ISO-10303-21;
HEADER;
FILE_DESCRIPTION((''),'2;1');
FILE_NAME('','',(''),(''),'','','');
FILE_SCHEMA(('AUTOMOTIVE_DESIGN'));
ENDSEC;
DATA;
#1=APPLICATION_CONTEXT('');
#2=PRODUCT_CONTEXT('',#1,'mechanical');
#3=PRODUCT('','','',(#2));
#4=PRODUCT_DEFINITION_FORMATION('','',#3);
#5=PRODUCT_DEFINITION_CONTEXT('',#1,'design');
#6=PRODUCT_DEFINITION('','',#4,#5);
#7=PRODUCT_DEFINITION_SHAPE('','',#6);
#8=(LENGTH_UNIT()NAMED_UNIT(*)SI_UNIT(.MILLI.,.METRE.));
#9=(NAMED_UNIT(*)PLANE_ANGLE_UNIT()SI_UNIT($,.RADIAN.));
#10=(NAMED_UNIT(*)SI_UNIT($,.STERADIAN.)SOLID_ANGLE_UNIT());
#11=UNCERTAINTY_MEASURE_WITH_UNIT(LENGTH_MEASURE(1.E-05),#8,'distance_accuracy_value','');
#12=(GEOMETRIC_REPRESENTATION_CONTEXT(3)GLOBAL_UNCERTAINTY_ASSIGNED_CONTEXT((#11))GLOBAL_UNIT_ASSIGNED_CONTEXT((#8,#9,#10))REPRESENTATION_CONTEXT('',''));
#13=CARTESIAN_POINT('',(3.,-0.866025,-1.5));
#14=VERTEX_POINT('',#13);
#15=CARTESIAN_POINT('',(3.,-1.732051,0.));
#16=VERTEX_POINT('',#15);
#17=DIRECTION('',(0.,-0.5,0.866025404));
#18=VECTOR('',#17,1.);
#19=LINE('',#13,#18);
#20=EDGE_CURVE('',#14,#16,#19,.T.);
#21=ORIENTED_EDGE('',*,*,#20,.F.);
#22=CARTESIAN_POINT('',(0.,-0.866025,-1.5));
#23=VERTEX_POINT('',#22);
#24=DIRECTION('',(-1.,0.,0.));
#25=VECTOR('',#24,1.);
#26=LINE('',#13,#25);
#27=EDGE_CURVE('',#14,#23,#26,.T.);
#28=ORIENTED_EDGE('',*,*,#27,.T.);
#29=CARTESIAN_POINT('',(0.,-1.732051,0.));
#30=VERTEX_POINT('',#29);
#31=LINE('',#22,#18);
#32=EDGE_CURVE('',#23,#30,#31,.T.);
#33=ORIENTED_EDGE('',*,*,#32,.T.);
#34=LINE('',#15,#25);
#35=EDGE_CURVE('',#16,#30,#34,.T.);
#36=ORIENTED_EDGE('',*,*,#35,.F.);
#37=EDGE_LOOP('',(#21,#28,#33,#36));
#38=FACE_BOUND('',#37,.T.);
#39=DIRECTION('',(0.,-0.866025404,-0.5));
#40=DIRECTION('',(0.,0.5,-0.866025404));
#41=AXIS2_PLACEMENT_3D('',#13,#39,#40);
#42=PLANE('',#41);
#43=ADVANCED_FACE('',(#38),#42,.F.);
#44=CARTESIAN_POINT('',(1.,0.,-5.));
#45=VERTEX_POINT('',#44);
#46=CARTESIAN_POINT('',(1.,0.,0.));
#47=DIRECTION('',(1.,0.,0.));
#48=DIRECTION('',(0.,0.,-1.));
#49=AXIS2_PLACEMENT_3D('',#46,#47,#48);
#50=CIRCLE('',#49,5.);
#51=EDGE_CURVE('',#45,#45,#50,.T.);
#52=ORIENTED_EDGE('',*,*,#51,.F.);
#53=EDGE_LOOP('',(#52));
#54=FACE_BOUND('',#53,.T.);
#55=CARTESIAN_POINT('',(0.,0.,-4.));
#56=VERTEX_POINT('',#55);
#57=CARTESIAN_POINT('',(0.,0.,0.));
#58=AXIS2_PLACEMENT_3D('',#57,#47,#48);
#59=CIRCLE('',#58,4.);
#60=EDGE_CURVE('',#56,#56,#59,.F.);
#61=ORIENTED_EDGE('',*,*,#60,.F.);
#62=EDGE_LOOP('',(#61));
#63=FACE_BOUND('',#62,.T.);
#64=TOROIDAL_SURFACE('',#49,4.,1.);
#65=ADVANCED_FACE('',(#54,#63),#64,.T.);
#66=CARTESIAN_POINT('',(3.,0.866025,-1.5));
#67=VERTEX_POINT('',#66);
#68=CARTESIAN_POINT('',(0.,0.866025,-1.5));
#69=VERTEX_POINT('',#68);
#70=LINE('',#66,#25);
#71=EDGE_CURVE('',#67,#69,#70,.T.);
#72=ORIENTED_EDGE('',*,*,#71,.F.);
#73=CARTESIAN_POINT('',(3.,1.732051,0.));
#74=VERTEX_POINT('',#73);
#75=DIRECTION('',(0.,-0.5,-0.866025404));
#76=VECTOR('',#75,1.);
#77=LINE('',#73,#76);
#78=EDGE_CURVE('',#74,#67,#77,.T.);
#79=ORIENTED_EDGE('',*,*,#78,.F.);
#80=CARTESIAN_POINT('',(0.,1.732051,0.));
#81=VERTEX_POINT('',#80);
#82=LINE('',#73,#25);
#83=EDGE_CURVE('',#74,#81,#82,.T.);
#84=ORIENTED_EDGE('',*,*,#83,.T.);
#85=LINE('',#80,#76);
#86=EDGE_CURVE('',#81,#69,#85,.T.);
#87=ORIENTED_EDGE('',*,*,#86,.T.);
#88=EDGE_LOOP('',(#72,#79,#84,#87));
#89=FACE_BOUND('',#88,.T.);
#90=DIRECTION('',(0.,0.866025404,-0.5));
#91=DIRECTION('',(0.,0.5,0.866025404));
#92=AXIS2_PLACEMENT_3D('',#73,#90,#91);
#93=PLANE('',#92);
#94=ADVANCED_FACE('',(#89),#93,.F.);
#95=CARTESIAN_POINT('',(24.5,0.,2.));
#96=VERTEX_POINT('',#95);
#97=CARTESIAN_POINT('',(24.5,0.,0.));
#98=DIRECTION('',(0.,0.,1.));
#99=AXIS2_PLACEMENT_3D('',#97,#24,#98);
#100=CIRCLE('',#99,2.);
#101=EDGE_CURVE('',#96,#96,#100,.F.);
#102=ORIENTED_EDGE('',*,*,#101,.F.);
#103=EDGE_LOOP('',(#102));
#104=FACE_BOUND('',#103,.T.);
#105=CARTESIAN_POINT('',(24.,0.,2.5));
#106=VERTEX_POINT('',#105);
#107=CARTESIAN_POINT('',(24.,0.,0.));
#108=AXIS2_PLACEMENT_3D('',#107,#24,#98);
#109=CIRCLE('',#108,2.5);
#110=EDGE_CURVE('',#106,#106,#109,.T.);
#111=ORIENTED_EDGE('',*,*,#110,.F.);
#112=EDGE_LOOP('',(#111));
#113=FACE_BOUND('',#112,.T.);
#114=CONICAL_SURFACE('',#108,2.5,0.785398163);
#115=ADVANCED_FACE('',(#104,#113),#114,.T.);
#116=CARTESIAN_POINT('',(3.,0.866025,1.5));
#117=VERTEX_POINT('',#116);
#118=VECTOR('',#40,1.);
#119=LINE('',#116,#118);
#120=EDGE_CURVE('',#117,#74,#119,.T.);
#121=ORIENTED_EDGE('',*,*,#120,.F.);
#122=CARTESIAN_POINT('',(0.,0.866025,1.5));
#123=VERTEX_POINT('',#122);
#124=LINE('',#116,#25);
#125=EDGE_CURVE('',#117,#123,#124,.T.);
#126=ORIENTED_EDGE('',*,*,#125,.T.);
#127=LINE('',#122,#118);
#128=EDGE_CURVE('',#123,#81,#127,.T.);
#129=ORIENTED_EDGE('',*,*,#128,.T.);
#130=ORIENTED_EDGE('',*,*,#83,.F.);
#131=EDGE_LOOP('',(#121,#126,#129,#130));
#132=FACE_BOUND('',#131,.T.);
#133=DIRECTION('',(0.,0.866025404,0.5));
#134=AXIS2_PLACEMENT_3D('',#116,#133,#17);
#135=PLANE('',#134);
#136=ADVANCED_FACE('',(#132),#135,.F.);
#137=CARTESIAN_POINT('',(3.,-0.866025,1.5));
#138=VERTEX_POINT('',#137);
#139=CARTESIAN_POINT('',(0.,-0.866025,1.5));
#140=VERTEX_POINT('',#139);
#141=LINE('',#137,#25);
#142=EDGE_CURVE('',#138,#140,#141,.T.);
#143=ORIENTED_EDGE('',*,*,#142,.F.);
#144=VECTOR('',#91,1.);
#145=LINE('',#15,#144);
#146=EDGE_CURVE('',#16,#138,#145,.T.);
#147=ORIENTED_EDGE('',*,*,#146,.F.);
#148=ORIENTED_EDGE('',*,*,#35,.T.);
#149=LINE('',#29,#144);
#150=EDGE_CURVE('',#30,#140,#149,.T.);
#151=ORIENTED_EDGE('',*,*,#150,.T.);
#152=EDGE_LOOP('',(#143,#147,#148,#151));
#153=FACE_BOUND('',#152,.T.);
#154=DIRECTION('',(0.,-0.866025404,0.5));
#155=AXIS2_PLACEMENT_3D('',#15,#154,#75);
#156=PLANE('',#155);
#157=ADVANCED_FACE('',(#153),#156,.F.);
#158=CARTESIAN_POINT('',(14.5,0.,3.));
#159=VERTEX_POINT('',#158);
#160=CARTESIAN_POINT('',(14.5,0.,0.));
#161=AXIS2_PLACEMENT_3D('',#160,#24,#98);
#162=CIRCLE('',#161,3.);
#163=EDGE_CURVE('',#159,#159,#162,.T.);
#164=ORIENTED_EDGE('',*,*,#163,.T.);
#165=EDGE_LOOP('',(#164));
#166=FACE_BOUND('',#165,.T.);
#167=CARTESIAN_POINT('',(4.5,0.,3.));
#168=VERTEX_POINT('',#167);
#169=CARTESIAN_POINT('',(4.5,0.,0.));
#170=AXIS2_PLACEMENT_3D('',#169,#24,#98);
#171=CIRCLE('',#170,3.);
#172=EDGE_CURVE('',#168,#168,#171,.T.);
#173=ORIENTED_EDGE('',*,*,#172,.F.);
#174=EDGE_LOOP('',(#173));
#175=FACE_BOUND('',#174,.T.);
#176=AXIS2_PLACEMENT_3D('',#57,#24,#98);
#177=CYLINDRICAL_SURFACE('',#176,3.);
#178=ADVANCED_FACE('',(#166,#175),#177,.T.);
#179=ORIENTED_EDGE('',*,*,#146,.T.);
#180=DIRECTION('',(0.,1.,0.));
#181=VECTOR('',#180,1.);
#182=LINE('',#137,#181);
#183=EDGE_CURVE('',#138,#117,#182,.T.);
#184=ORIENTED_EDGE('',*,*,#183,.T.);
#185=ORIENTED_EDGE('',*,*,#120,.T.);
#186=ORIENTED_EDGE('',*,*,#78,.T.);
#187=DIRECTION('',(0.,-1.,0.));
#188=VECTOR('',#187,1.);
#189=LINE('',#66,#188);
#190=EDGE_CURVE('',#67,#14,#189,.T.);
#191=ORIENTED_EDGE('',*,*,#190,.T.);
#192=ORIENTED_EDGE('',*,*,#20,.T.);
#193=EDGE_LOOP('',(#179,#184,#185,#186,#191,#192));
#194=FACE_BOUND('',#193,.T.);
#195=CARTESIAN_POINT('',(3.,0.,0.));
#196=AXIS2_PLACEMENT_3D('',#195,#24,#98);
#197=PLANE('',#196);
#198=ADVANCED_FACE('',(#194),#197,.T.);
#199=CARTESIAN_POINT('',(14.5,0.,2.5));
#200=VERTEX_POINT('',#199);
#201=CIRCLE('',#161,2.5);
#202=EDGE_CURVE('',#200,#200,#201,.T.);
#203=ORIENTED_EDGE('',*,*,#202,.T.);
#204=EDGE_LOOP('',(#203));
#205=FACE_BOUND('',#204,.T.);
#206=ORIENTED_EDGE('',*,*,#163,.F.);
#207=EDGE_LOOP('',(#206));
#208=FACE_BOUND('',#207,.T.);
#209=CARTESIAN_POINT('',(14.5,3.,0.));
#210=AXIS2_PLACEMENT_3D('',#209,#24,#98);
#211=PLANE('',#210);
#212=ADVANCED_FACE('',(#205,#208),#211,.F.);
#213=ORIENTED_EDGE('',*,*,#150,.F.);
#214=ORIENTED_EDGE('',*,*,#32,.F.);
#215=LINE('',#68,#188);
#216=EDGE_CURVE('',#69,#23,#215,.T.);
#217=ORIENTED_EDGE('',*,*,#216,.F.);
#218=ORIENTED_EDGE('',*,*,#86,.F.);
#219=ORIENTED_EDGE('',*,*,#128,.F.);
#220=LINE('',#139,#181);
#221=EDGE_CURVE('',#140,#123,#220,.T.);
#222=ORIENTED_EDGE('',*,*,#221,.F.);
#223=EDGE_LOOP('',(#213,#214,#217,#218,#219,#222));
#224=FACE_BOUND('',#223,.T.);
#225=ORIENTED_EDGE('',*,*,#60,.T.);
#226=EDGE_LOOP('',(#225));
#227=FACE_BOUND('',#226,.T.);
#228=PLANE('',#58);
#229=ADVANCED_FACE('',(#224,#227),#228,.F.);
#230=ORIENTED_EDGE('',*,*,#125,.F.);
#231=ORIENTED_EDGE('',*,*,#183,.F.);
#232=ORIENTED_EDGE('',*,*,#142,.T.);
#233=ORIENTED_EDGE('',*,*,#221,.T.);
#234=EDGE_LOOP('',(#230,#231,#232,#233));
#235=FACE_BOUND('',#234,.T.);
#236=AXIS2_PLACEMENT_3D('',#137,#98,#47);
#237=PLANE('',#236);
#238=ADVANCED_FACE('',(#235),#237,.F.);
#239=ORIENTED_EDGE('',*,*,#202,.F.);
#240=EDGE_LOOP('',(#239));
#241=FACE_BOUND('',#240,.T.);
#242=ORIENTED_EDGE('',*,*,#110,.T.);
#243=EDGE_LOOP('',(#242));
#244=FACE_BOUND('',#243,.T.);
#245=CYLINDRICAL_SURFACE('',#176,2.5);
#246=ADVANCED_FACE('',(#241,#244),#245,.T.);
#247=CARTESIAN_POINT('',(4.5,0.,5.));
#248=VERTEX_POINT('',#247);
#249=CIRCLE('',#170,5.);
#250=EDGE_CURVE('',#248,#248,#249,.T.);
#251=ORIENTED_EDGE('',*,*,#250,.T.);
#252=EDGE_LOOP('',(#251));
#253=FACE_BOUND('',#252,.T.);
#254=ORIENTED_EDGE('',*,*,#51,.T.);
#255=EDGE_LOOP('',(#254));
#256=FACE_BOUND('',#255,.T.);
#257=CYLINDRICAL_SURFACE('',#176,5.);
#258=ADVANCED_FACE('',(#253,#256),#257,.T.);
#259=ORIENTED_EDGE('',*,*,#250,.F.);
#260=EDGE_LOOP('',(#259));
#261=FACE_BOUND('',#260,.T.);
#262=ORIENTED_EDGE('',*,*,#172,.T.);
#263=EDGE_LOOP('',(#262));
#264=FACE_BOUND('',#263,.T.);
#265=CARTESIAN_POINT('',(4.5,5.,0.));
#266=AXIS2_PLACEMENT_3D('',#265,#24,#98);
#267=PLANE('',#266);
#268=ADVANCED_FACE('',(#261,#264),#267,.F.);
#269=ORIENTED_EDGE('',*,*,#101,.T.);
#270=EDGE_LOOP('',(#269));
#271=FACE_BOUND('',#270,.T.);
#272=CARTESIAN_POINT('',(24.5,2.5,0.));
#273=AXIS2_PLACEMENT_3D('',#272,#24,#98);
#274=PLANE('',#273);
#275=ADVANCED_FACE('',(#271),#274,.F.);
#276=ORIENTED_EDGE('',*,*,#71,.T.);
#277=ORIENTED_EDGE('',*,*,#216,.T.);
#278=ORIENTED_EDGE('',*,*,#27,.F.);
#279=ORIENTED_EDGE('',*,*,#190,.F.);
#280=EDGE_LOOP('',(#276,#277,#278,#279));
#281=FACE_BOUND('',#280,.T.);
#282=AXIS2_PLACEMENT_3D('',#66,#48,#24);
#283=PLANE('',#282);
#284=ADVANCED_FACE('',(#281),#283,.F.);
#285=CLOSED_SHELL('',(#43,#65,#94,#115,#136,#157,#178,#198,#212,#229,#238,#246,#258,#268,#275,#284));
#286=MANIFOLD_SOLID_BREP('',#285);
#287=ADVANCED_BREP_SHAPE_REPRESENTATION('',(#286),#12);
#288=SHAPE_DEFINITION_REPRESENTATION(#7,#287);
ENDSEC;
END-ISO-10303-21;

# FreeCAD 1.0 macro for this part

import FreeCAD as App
import Part
import Sketcher
Q = App.Units.Quantity


def edges_at(feature, points):
    """Names of the edges that pass closest to the given points."""
    edges = feature.Shape.Edges
    near = lambda p: min(range(len(edges)), key=lambda i: edges[i].distToShape(Part.Vertex(*p))[0])
    return sorted({f"Edge{near(p) + 1}" for p in points})

doc = App.newDocument("Part")
body = doc.addObject("PartDesign::Body", "Body")

sketch1 = doc.addObject("Sketcher::SketchObject", "Sketch")
body.addObject(sketch1)
sketch1.AttachmentSupport = (doc.XY_Plane, [""])
sketch1.MapMode = "FlatFace"
sketch1.addGeometry([
    Part.LineSegment(App.Vector(0, 5, 0), App.Vector(0, 0, 0)),
    Part.LineSegment(App.Vector(0, 0, 0), App.Vector(24.5, 0, 0)),
    Part.LineSegment(App.Vector(24.5, 0, 0), App.Vector(24.5, 2.5, 0)),
    Part.LineSegment(App.Vector(24.5, 2.5, 0), App.Vector(14.5, 2.5, 0)),
    Part.LineSegment(App.Vector(14.5, 2.5, 0), App.Vector(14.5, 3, 0)),
    Part.LineSegment(App.Vector(14.5, 3, 0), App.Vector(4.5, 3, 0)),
    Part.LineSegment(App.Vector(4.5, 3, 0), App.Vector(4.5, 5, 0)),
    Part.LineSegment(App.Vector(4.5, 5, 0), App.Vector(0, 5, 0)),
], False)
sketch1.addConstraint([
    Sketcher.Constraint("Coincident", 0, 2, 1, 1),
    Sketcher.Constraint("Coincident", 1, 2, 2, 1),
    Sketcher.Constraint("Coincident", 2, 2, 3, 1),
    Sketcher.Constraint("Coincident", 3, 2, 4, 1),
    Sketcher.Constraint("Coincident", 4, 2, 5, 1),
    Sketcher.Constraint("Coincident", 5, 2, 6, 1),
    Sketcher.Constraint("Coincident", 6, 2, 7, 1),
    Sketcher.Constraint("Coincident", 7, 2, 0, 1),
    Sketcher.Constraint("Vertical", 0),
    Sketcher.Constraint("Horizontal", 1),
    Sketcher.Constraint("Vertical", 2),
    Sketcher.Constraint("Horizontal", 3),
    Sketcher.Constraint("Vertical", 4),
    Sketcher.Constraint("Horizontal", 5),
    Sketcher.Constraint("Vertical", 6),
    Sketcher.Constraint("Horizontal", 7),
    Sketcher.Constraint("Coincident", 0, 2, -1, 1),
    Sketcher.Constraint("Equal", 3, 5),
    Sketcher.Constraint("DistanceX", 3, 2, 3, 1, 10.0),
    Sketcher.Constraint("DistanceY", 0, 2, 0, 1, 5.0),
    Sketcher.Constraint("DistanceY", 6, 1, 6, 2, 2.0),
    Sketcher.Constraint("DistanceX", 1, 1, 1, 2, 24.5),
    Sketcher.Constraint("DistanceY", 2, 1, 2, 2, 2.5),
])
revolution = doc.addObject("PartDesign::Revolution", "Revolution")
body.addObject(revolution)
revolution.Profile = sketch1
revolution.ReferenceAxis = (sketch1, ["H_Axis"])
revolution.Angle = 360

sketch2 = doc.addObject("Sketcher::SketchObject", "Sketch001")
body.addObject(sketch2)
sketch2.AttachmentSupport = (doc.YZ_Plane, [""])
sketch2.MapMode = "FlatFace"
sketch2.addGeometry([
    Part.LineSegment(App.Vector(1.732051, 0, 0), App.Vector(0.866025, -1.5, 0)),
    Part.LineSegment(App.Vector(0.866025, -1.5, 0), App.Vector(-0.866025, -1.5, 0)),
    Part.LineSegment(App.Vector(-0.866025, -1.5, 0), App.Vector(-1.732051, 0, 0)),
    Part.LineSegment(App.Vector(-1.732051, 0, 0), App.Vector(-0.866025, 1.5, 0)),
    Part.LineSegment(App.Vector(-0.866025, 1.5, 0), App.Vector(0.866025, 1.5, 0)),
    Part.LineSegment(App.Vector(0.866025, 1.5, 0), App.Vector(1.732051, 0, 0)),
], False)
sketch2.addConstraint([
    Sketcher.Constraint("Coincident", 0, 2, 1, 1),
    Sketcher.Constraint("Coincident", 1, 2, 2, 1),
    Sketcher.Constraint("Coincident", 2, 2, 3, 1),
    Sketcher.Constraint("Coincident", 3, 2, 4, 1),
    Sketcher.Constraint("Coincident", 4, 2, 5, 1),
    Sketcher.Constraint("Coincident", 5, 2, 0, 1),
    Sketcher.Constraint("Horizontal", 1),
    Sketcher.Constraint("Horizontal", 4),
    Sketcher.Constraint("Symmetric", 0, 2, 3, 2, -1, 1),
    Sketcher.Constraint("Symmetric", 2, 2, 5, 2, -1, 1),
    Sketcher.Constraint("PointOnObject", 2, 2, -1),
    Sketcher.Constraint("Parallel", 2, 5),
    Sketcher.Constraint("Vertical", 1, 2, 3, 2),
    Sketcher.Constraint("Angle", 0, Q("-120 deg")),
    Sketcher.Constraint("DistanceY", 1, 2, 3, 2, 3.0),
    Sketcher.Constraint("DistanceX", 1, 2, 1, 1, 1.732051),
])
pocket1 = doc.addObject("PartDesign::Pocket", "Pocket")
body.addObject(pocket1)
pocket1.Profile = sketch2
pocket1.Length = 3
pocket1.Reversed = True
doc.recompute()

fillet = doc.addObject("PartDesign::Fillet", "Fillet")
body.addObject(fillet)
fillet.Base = (pocket1, edges_at(pocket1, [(0, -5, 0)]))
fillet.Radius = 1
doc.recompute()

chamfer = doc.addObject("PartDesign::Chamfer", "Chamfer")
body.addObject(chamfer)
chamfer.Base = (fillet, edges_at(fillet, [(24.5, -2.5, 0)]))
chamfer.Size = 0.5

doc.recompute()
